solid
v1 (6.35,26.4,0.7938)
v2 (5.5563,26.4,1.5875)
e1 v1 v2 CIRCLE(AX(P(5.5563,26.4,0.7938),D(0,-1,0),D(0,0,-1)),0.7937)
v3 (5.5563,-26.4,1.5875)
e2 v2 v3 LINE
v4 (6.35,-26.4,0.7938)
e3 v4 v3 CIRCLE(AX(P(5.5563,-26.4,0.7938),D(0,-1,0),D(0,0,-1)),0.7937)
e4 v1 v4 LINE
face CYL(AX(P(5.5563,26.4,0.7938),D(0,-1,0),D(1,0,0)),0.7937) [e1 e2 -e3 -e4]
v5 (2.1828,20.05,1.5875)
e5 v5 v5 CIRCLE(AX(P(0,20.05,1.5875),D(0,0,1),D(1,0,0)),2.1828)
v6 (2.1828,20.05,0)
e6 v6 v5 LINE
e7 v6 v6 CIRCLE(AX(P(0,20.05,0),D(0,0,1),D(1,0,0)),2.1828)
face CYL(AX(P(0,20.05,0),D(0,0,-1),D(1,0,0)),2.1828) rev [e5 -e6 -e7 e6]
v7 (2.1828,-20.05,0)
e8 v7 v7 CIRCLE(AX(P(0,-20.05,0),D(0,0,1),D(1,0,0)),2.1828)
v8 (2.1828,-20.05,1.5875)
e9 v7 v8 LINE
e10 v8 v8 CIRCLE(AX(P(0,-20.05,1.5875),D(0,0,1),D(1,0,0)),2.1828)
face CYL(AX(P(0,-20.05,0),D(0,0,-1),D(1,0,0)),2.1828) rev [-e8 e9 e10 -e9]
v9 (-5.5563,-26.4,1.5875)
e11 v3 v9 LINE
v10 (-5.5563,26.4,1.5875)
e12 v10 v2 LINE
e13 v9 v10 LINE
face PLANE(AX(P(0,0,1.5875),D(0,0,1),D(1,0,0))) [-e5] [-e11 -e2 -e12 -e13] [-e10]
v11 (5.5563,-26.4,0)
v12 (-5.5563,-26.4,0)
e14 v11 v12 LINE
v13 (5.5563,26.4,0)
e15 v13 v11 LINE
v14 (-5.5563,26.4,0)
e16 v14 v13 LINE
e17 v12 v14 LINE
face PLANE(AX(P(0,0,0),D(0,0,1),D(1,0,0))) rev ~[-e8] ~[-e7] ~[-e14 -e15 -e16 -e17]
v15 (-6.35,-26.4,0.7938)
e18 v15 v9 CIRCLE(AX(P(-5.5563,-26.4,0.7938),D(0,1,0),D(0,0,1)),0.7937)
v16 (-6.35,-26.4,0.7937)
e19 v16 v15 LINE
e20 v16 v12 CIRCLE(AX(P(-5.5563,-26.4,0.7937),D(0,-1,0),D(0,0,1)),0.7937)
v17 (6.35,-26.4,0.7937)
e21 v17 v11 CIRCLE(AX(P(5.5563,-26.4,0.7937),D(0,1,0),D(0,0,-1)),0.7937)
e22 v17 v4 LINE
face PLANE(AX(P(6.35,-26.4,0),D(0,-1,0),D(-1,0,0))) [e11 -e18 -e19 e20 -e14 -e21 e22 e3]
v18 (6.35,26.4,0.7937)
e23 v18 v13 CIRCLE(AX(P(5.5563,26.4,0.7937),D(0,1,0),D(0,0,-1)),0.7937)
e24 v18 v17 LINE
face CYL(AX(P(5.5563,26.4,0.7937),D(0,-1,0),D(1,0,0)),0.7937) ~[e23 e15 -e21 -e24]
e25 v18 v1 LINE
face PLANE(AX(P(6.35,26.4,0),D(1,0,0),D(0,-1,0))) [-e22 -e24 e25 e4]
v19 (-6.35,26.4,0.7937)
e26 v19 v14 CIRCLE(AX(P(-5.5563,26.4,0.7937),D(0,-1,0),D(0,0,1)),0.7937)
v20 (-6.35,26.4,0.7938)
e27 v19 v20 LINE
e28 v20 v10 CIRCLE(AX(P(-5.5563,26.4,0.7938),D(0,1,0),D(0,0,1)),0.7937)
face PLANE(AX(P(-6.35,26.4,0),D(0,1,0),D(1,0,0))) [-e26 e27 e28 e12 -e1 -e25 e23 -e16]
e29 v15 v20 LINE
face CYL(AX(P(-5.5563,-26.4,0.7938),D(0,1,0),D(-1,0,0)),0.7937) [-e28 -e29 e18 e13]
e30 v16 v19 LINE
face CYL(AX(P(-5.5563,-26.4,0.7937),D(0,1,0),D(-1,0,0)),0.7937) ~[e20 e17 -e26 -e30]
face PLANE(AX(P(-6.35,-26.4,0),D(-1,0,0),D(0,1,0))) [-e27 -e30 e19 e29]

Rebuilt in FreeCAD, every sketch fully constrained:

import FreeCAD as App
import Part
import Sketcher
from FreeCAD import Vector
Q = App.Units.Quantity


def edges_at(feature, points):
    """Names of the edges that pass closest to the given points."""
    edges = feature.Shape.Edges
    near = lambda p: min(range(len(edges)), key=lambda i: edges[i].distToShape(Part.Vertex(*p))[0])
    return sorted({f"Edge{near(p) + 1}" for p in points})


def add_polygon(sketch, points):
    """Adds a closed chain of lines whose ends are joined by coincident constraints."""
    first, n = sketch.GeometryCount, len(points)
    for a, b in zip(points, points[1:] + points[:1]):
        sketch.addGeometry(Part.LineSegment(App.Vector(*a, 0), App.Vector(*b, 0)), False)
    for i in range(n):
        sketch.addConstraint(Sketcher.Constraint("Coincident", first + i, 2, first + (i + 1) % n, 1))

doc = App.newDocument("Part")
body = doc.addObject("PartDesign::Body", "Body")

sketch1 = body.newObject("Sketcher::SketchObject", "Sketch")
sketch1.AttachmentSupport = (doc.getObject("XY_Plane"), [""])
sketch1.MapMode = "FlatFace"
add_polygon(sketch1, [(-6.35, -26.4), (6.35, -26.4), (6.35, 26.4), (-6.35, 26.4)])
sketch1.addGeometry(Part.Circle(Vector(0, -20.05, 0), Vector(0, 0, 1), 2.1828), False)
sketch1.addGeometry(Part.Circle(Vector(0, 20.05, 0), Vector(0, 0, 1), 2.1828), False)
sketch1.addConstraint(Sketcher.Constraint("Horizontal", 0))
sketch1.addConstraint(Sketcher.Constraint("Vertical", 1))
sketch1.addConstraint(Sketcher.Constraint("Horizontal", 2))
sketch1.addConstraint(Sketcher.Constraint("Vertical", 3))
sketch1.addConstraint(Sketcher.Constraint("Equal", 4, 5))
sketch1.addConstraint(Sketcher.Constraint("Symmetric", 4, 3, 5, 3, -1, 1))
sketch1.addConstraint(Sketcher.Constraint("Symmetric", 0, 2, 2, 2, -1, 1))
sketch1.addConstraint(Sketcher.Constraint("PointOnObject", 4, 3, -2))
sketch1.addConstraint(Sketcher.Constraint("Diameter", 4, Q("0.171874 in")))
sketch1.addConstraint(Sketcher.Constraint("DistanceX", 0, 1, 0, 2, Q("0.5 in")))
sketch1.addConstraint(Sketcher.Constraint("DistanceY", 0, 2, 4, 3, Q("0.25 in")))
sketch1.addConstraint(Sketcher.Constraint("DistanceY", 4, 3, -1, 1, Q("20.05 mm")))
pad1 = body.newObject("PartDesign::Pad", "Pad")
pad1.Profile = sketch1
pad1.Length = Q("0.0625 in")
doc.recompute()

fillet = body.newObject("PartDesign::Fillet", "Fillet")
fillet.Base = (pad1, edges_at(pad1, [
    (-6.35, 0, 0),
    (-6.35, 0, 1.587),
    (6.35, 0, 0),
    (6.35, 0, 1.587),
]))
fillet.Radius = Q("0.031248 in")

doc.recompute()
